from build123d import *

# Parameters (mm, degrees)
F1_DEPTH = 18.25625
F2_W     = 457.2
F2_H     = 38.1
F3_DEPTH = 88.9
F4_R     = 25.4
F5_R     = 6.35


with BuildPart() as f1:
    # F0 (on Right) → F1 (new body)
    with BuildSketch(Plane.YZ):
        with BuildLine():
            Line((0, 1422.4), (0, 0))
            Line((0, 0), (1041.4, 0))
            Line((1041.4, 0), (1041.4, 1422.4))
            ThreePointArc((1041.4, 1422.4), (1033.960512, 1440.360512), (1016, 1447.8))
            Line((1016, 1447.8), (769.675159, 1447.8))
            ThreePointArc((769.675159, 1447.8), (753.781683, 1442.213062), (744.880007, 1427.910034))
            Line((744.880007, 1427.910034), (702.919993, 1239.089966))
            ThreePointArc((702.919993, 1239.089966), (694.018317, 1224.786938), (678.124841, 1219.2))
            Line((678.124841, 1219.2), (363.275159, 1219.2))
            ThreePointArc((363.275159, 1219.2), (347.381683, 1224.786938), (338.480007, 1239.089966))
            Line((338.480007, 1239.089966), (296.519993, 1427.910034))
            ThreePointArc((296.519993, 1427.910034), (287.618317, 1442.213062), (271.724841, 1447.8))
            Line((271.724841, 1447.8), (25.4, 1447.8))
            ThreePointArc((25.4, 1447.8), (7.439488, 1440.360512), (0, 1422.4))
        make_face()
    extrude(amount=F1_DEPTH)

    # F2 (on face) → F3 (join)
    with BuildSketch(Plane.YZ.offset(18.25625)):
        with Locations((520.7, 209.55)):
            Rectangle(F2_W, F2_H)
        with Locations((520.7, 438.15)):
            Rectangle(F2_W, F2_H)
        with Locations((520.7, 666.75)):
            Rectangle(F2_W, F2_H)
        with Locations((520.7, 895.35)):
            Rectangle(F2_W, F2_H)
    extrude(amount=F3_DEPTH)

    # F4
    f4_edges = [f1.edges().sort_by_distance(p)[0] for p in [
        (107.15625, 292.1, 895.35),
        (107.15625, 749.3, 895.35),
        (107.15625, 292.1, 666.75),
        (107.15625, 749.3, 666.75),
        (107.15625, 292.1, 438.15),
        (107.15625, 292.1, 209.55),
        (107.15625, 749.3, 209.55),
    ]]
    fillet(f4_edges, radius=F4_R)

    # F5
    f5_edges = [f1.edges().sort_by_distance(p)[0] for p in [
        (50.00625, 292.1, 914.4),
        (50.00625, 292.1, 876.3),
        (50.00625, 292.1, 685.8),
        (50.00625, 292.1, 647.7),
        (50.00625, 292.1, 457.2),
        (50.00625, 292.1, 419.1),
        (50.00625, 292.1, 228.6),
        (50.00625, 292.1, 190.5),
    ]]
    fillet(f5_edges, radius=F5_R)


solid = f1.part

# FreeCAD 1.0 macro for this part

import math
import FreeCAD as App
import Part
import Sketcher
from FreeCAD import Vector
Q = App.Units.Quantity


def edges_at(feature, points):
    """Names of the edges that pass closest to the given points."""
    edges = feature.Shape.Edges
    near = lambda p: min(range(len(edges)), key=lambda i: edges[i].distToShape(Part.Vertex(*p))[0])
    return sorted({f"Edge{near(p) + 1}" for p in points})


def add_polygon(sketch, points):
    """Adds a closed chain of lines whose ends are joined by coincident constraints."""
    first, n = sketch.GeometryCount, len(points)
    for a, b in zip(points, points[1:] + points[:1]):
        sketch.addGeometry(Part.LineSegment(App.Vector(*a, 0), App.Vector(*b, 0)), False)
    for i in range(n):
        sketch.addConstraint(Sketcher.Constraint("Coincident", first + i, 2, first + (i + 1) % n, 1))

doc = App.newDocument("Part")
body = doc.addObject("PartDesign::Body", "Body")

# Sketch on YZ plane
sketch1 = body.newObject("Sketcher::SketchObject", "Sketch")
sketch1.AttachmentSupport = (doc.getObject("YZ_Plane"), [""])
sketch1.MapMode = "FlatFace"
sketch1.addGeometry(Part.LineSegment(Vector(0, 1422, 0), Vector(0, 0, 0)), False)
sketch1.addGeometry(Part.LineSegment(Vector(0, 0, 0), Vector(1041, 0, 0)), False)
sketch1.addGeometry(Part.LineSegment(Vector(1041, 0, 0), Vector(1041, 1422, 0)), False)
sketch1.addGeometry(Part.ArcOfCircle(Part.Circle(Vector(1016, 1422, 0), Vector(0, 0, 1), 25), math.radians(0), math.radians(90)), False)
sketch1.addGeometry(Part.LineSegment(Vector(1016, 1448, 0), Vector(770, 1448, 0)), False)
sketch1.addGeometry(Part.ArcOfCircle(Part.Circle(Vector(770, 1422, 0), Vector(0, 0, 1), 25), math.radians(90), math.radians(167)), False)
sketch1.addGeometry(Part.LineSegment(Vector(745, 1428, 0), Vector(703, 1239, 0)), False)
sketch1.addGeometry(Part.ArcOfCircle(Part.Circle(Vector(678, 1245, 0), Vector(0, 0, 1), 25), math.radians(-90), math.radians(-13)), False)
sketch1.addGeometry(Part.LineSegment(Vector(678, 1219, 0), Vector(363, 1219, 0)), False)
sketch1.addGeometry(Part.ArcOfCircle(Part.Circle(Vector(363, 1245, 0), Vector(0, 0, 1), 25), math.radians(-167), math.radians(-90)), False)
sketch1.addGeometry(Part.LineSegment(Vector(338, 1239, 0), Vector(297, 1428, 0)), False)
sketch1.addGeometry(Part.ArcOfCircle(Part.Circle(Vector(272, 1422, 0), Vector(0, 0, 1), 25), math.radians(13), math.radians(90)), False)
sketch1.addGeometry(Part.LineSegment(Vector(272, 1448, 0), Vector(25, 1448, 0)), False)
sketch1.addGeometry(Part.ArcOfCircle(Part.Circle(Vector(25, 1422, 0), Vector(0, 0, 1), 25), math.radians(90), math.radians(180)), False)
sketch1.addConstraint(Sketcher.Constraint("Coincident", 0, 2, 1, 1))
sketch1.addConstraint(Sketcher.Constraint("Coincident", 1, 2, 2, 1))
sketch1.addConstraint(Sketcher.Constraint("Tangent", 2, 2, 3, 1))
sketch1.addConstraint(Sketcher.Constraint("Tangent", 3, 2, 4, 1))
sketch1.addConstraint(Sketcher.Constraint("Tangent", 4, 2, 5, 1))
sketch1.addConstraint(Sketcher.Constraint("Tangent", 5, 2, 6, 1))
sketch1.addConstraint(Sketcher.Constraint("Tangent", 6, 2, 7, 2))
sketch1.addConstraint(Sketcher.Constraint("Tangent", 7, 1, 8, 1))
sketch1.addConstraint(Sketcher.Constraint("Tangent", 8, 2, 9, 2))
sketch1.addConstraint(Sketcher.Constraint("Tangent", 9, 1, 10, 1))
sketch1.addConstraint(Sketcher.Constraint("Tangent", 10, 2, 11, 1))
sketch1.addConstraint(Sketcher.Constraint("Tangent", 11, 2, 12, 1))
sketch1.addConstraint(Sketcher.Constraint("Tangent", 12, 2, 13, 1))
sketch1.addConstraint(Sketcher.Constraint("Tangent", 13, 2, 0, 1))
sketch1.addConstraint(Sketcher.Constraint("Vertical", 0))
sketch1.addConstraint(Sketcher.Constraint("Horizontal", 1))
sketch1.addConstraint(Sketcher.Constraint("Vertical", 2))
sketch1.addConstraint(Sketcher.Constraint("Horizontal", 4))
sketch1.addConstraint(Sketcher.Constraint("Horizontal", 8))
sketch1.addConstraint(Sketcher.Constraint("Horizontal", 12))
sketch1.addConstraint(Sketcher.Constraint("Coincident", 0, 2, -1, 1))
sketch1.addConstraint(Sketcher.Constraint("Equal", 3, 5))
sketch1.addConstraint(Sketcher.Constraint("Equal", 5, 7))
sketch1.addConstraint(Sketcher.Constraint("Equal", 7, 9))
sketch1.addConstraint(Sketcher.Constraint("Equal", 9, 11))
sketch1.addConstraint(Sketcher.Constraint("Equal", 11, 13))
sketch1.addConstraint(Sketcher.Constraint("Horizontal", 5, 3, 11, 3))
sketch1.addConstraint(Sketcher.Constraint("Horizontal", 6, 2, 9, 1))
sketch1.addConstraint(Sketcher.Constraint("Equal", 4, 12))
sketch1.addConstraint(Sketcher.Constraint("Radius", 3, Q("1 in")))
sketch1.addConstraint(Sketcher.Constraint("DistanceX", 1, 1, 1, 2, Q("41 in")))
sketch1.addConstraint(Sketcher.Constraint("DistanceY", 0, 2, 0, 1, Q("56 in")))
sketch1.addConstraint(Sketcher.Constraint("DistanceY", -1, 1, 7, 3, Q("49.0000001 in")))
sketch1.addConstraint(Sketcher.Constraint("DistanceX", 9, 3, 5, 3, Q("16 in")))
sketch1.addConstraint(Sketcher.Constraint("DistanceX", 4, 2, 4, 1, 246.324841))
pad1 = body.newObject("PartDesign::Pad", "Pad")
pad1.Profile = sketch1
pad1.Length = Q("0.71875 in")

# Sketch on YZ plane
sketch2 = body.newObject("Sketcher::SketchObject", "Sketch001")
sketch2.AttachmentSupport = (doc.getObject("YZ_Plane"), [""])
sketch2.MapMode = "FlatFace"
sketch2.AttachmentOffset = App.Placement(Vector(0, 0, 0.71875 * 25.4), App.Rotation())
add_polygon(sketch2, [(292, 229), (292, 190), (749, 190), (749, 229)])  # lines 0-3
add_polygon(sketch2, [(292, 457), (292, 419), (749, 419), (749, 457)])  # lines 4-7
add_polygon(sketch2, [(292, 686), (292, 648), (749, 648), (749, 686)])  # lines 8-11
add_polygon(sketch2, [(292, 914), (292, 876), (749, 876), (749, 914)])  # lines 12-15
sketch2.addConstraint(Sketcher.Constraint("Vertical", 0))
sketch2.addConstraint(Sketcher.Constraint("Horizontal", 1))
sketch2.addConstraint(Sketcher.Constraint("Vertical", 2))
sketch2.addConstraint(Sketcher.Constraint("Horizontal", 3))
sketch2.addConstraint(Sketcher.Constraint("Vertical", 4))
sketch2.addConstraint(Sketcher.Constraint("Horizontal", 5))
sketch2.addConstraint(Sketcher.Constraint("Vertical", 6))
sketch2.addConstraint(Sketcher.Constraint("Horizontal", 7))
sketch2.addConstraint(Sketcher.Constraint("Vertical", 8))
sketch2.addConstraint(Sketcher.Constraint("Horizontal", 9))
sketch2.addConstraint(Sketcher.Constraint("Vertical", 10))
sketch2.addConstraint(Sketcher.Constraint("Horizontal", 11))
sketch2.addConstraint(Sketcher.Constraint("Vertical", 12))
sketch2.addConstraint(Sketcher.Constraint("Horizontal", 13))
sketch2.addConstraint(Sketcher.Constraint("Vertical", 14))
sketch2.addConstraint(Sketcher.Constraint("Horizontal", 15))
sketch2.addConstraint(Sketcher.Constraint("Vertical", 3, 2, 4, 2))
sketch2.addConstraint(Sketcher.Constraint("Vertical", 2, 2, 5, 2))
sketch2.addConstraint(Sketcher.Constraint("Vertical", 7, 2, 8, 2))
sketch2.addConstraint(Sketcher.Constraint("Vertical", 6, 2, 9, 2))
sketch2.addConstraint(Sketcher.Constraint("Vertical", 11, 2, 12, 2))
sketch2.addConstraint(Sketcher.Constraint("Vertical", 10, 2, 13, 2))
sketch2.addConstraint(Sketcher.Constraint("Equal", 2, 4))
sketch2.addConstraint(Sketcher.Constraint("Equal", 6, 8))
sketch2.addConstraint(Sketcher.Constraint("Equal", 10, 12))
sketch2.addConstraint(Sketcher.Constraint("DistanceX", 1, 1, 1, 2, Q("18 in")))
sketch2.addConstraint(Sketcher.Constraint("DistanceY", 0, 2, 0, 1, Q("1.5 in")))
sketch2.addConstraint(Sketcher.Constraint("DistanceY", -1, 1, 2, 2, Q("9 in")))
sketch2.addConstraint(Sketcher.Constraint("DistanceY", -1, 1, 6, 2, Q("18 in")))
sketch2.addConstraint(Sketcher.Constraint("DistanceY", -1, 1, 10, 2, Q("27 in")))
sketch2.addConstraint(Sketcher.Constraint("DistanceY", -1, 1, 14, 2, Q("36 in")))
sketch2.addConstraint(Sketcher.Constraint("DistanceX", -1, 1, 0, 2, Q("11.5 in")))
pad2 = body.newObject("PartDesign::Pad", "Pad001")
pad2.Profile = sketch2
pad2.Length = Q("3.5 in")
doc.recompute()

fillet = body.newObject("PartDesign::Fillet", "Fillet")
fillet.Base = (pad2, edges_at(pad2, [
    (107.156, 292.1, 895.35),
    (107.156, 749.3, 895.35),
    (107.156, 292.1, 666.75),
    (107.156, 749.3, 666.75),
    (107.156, 292.1, 438.15),
    (107.156, 292.1, 209.55),
    (107.156, 749.3, 209.55),
]))
fillet.Radius = Q("1 in")
doc.recompute()

fillet2 = body.newObject("PartDesign::Fillet", "Fillet001")
fillet2.Base = (fillet, edges_at(fillet, [
    (50.006, 292.1, 914.4),
    (50.006, 292.1, 876.3),
    (50.006, 292.1, 685.8),
    (50.006, 292.1, 647.7),
    (50.006, 292.1, 457.2),
    (50.006, 292.1, 419.1),
    (50.006, 292.1, 228.6),
    (50.006, 292.1, 190.5),
]))
fillet2.Radius = Q("0.25 in")

doc.recompute()
